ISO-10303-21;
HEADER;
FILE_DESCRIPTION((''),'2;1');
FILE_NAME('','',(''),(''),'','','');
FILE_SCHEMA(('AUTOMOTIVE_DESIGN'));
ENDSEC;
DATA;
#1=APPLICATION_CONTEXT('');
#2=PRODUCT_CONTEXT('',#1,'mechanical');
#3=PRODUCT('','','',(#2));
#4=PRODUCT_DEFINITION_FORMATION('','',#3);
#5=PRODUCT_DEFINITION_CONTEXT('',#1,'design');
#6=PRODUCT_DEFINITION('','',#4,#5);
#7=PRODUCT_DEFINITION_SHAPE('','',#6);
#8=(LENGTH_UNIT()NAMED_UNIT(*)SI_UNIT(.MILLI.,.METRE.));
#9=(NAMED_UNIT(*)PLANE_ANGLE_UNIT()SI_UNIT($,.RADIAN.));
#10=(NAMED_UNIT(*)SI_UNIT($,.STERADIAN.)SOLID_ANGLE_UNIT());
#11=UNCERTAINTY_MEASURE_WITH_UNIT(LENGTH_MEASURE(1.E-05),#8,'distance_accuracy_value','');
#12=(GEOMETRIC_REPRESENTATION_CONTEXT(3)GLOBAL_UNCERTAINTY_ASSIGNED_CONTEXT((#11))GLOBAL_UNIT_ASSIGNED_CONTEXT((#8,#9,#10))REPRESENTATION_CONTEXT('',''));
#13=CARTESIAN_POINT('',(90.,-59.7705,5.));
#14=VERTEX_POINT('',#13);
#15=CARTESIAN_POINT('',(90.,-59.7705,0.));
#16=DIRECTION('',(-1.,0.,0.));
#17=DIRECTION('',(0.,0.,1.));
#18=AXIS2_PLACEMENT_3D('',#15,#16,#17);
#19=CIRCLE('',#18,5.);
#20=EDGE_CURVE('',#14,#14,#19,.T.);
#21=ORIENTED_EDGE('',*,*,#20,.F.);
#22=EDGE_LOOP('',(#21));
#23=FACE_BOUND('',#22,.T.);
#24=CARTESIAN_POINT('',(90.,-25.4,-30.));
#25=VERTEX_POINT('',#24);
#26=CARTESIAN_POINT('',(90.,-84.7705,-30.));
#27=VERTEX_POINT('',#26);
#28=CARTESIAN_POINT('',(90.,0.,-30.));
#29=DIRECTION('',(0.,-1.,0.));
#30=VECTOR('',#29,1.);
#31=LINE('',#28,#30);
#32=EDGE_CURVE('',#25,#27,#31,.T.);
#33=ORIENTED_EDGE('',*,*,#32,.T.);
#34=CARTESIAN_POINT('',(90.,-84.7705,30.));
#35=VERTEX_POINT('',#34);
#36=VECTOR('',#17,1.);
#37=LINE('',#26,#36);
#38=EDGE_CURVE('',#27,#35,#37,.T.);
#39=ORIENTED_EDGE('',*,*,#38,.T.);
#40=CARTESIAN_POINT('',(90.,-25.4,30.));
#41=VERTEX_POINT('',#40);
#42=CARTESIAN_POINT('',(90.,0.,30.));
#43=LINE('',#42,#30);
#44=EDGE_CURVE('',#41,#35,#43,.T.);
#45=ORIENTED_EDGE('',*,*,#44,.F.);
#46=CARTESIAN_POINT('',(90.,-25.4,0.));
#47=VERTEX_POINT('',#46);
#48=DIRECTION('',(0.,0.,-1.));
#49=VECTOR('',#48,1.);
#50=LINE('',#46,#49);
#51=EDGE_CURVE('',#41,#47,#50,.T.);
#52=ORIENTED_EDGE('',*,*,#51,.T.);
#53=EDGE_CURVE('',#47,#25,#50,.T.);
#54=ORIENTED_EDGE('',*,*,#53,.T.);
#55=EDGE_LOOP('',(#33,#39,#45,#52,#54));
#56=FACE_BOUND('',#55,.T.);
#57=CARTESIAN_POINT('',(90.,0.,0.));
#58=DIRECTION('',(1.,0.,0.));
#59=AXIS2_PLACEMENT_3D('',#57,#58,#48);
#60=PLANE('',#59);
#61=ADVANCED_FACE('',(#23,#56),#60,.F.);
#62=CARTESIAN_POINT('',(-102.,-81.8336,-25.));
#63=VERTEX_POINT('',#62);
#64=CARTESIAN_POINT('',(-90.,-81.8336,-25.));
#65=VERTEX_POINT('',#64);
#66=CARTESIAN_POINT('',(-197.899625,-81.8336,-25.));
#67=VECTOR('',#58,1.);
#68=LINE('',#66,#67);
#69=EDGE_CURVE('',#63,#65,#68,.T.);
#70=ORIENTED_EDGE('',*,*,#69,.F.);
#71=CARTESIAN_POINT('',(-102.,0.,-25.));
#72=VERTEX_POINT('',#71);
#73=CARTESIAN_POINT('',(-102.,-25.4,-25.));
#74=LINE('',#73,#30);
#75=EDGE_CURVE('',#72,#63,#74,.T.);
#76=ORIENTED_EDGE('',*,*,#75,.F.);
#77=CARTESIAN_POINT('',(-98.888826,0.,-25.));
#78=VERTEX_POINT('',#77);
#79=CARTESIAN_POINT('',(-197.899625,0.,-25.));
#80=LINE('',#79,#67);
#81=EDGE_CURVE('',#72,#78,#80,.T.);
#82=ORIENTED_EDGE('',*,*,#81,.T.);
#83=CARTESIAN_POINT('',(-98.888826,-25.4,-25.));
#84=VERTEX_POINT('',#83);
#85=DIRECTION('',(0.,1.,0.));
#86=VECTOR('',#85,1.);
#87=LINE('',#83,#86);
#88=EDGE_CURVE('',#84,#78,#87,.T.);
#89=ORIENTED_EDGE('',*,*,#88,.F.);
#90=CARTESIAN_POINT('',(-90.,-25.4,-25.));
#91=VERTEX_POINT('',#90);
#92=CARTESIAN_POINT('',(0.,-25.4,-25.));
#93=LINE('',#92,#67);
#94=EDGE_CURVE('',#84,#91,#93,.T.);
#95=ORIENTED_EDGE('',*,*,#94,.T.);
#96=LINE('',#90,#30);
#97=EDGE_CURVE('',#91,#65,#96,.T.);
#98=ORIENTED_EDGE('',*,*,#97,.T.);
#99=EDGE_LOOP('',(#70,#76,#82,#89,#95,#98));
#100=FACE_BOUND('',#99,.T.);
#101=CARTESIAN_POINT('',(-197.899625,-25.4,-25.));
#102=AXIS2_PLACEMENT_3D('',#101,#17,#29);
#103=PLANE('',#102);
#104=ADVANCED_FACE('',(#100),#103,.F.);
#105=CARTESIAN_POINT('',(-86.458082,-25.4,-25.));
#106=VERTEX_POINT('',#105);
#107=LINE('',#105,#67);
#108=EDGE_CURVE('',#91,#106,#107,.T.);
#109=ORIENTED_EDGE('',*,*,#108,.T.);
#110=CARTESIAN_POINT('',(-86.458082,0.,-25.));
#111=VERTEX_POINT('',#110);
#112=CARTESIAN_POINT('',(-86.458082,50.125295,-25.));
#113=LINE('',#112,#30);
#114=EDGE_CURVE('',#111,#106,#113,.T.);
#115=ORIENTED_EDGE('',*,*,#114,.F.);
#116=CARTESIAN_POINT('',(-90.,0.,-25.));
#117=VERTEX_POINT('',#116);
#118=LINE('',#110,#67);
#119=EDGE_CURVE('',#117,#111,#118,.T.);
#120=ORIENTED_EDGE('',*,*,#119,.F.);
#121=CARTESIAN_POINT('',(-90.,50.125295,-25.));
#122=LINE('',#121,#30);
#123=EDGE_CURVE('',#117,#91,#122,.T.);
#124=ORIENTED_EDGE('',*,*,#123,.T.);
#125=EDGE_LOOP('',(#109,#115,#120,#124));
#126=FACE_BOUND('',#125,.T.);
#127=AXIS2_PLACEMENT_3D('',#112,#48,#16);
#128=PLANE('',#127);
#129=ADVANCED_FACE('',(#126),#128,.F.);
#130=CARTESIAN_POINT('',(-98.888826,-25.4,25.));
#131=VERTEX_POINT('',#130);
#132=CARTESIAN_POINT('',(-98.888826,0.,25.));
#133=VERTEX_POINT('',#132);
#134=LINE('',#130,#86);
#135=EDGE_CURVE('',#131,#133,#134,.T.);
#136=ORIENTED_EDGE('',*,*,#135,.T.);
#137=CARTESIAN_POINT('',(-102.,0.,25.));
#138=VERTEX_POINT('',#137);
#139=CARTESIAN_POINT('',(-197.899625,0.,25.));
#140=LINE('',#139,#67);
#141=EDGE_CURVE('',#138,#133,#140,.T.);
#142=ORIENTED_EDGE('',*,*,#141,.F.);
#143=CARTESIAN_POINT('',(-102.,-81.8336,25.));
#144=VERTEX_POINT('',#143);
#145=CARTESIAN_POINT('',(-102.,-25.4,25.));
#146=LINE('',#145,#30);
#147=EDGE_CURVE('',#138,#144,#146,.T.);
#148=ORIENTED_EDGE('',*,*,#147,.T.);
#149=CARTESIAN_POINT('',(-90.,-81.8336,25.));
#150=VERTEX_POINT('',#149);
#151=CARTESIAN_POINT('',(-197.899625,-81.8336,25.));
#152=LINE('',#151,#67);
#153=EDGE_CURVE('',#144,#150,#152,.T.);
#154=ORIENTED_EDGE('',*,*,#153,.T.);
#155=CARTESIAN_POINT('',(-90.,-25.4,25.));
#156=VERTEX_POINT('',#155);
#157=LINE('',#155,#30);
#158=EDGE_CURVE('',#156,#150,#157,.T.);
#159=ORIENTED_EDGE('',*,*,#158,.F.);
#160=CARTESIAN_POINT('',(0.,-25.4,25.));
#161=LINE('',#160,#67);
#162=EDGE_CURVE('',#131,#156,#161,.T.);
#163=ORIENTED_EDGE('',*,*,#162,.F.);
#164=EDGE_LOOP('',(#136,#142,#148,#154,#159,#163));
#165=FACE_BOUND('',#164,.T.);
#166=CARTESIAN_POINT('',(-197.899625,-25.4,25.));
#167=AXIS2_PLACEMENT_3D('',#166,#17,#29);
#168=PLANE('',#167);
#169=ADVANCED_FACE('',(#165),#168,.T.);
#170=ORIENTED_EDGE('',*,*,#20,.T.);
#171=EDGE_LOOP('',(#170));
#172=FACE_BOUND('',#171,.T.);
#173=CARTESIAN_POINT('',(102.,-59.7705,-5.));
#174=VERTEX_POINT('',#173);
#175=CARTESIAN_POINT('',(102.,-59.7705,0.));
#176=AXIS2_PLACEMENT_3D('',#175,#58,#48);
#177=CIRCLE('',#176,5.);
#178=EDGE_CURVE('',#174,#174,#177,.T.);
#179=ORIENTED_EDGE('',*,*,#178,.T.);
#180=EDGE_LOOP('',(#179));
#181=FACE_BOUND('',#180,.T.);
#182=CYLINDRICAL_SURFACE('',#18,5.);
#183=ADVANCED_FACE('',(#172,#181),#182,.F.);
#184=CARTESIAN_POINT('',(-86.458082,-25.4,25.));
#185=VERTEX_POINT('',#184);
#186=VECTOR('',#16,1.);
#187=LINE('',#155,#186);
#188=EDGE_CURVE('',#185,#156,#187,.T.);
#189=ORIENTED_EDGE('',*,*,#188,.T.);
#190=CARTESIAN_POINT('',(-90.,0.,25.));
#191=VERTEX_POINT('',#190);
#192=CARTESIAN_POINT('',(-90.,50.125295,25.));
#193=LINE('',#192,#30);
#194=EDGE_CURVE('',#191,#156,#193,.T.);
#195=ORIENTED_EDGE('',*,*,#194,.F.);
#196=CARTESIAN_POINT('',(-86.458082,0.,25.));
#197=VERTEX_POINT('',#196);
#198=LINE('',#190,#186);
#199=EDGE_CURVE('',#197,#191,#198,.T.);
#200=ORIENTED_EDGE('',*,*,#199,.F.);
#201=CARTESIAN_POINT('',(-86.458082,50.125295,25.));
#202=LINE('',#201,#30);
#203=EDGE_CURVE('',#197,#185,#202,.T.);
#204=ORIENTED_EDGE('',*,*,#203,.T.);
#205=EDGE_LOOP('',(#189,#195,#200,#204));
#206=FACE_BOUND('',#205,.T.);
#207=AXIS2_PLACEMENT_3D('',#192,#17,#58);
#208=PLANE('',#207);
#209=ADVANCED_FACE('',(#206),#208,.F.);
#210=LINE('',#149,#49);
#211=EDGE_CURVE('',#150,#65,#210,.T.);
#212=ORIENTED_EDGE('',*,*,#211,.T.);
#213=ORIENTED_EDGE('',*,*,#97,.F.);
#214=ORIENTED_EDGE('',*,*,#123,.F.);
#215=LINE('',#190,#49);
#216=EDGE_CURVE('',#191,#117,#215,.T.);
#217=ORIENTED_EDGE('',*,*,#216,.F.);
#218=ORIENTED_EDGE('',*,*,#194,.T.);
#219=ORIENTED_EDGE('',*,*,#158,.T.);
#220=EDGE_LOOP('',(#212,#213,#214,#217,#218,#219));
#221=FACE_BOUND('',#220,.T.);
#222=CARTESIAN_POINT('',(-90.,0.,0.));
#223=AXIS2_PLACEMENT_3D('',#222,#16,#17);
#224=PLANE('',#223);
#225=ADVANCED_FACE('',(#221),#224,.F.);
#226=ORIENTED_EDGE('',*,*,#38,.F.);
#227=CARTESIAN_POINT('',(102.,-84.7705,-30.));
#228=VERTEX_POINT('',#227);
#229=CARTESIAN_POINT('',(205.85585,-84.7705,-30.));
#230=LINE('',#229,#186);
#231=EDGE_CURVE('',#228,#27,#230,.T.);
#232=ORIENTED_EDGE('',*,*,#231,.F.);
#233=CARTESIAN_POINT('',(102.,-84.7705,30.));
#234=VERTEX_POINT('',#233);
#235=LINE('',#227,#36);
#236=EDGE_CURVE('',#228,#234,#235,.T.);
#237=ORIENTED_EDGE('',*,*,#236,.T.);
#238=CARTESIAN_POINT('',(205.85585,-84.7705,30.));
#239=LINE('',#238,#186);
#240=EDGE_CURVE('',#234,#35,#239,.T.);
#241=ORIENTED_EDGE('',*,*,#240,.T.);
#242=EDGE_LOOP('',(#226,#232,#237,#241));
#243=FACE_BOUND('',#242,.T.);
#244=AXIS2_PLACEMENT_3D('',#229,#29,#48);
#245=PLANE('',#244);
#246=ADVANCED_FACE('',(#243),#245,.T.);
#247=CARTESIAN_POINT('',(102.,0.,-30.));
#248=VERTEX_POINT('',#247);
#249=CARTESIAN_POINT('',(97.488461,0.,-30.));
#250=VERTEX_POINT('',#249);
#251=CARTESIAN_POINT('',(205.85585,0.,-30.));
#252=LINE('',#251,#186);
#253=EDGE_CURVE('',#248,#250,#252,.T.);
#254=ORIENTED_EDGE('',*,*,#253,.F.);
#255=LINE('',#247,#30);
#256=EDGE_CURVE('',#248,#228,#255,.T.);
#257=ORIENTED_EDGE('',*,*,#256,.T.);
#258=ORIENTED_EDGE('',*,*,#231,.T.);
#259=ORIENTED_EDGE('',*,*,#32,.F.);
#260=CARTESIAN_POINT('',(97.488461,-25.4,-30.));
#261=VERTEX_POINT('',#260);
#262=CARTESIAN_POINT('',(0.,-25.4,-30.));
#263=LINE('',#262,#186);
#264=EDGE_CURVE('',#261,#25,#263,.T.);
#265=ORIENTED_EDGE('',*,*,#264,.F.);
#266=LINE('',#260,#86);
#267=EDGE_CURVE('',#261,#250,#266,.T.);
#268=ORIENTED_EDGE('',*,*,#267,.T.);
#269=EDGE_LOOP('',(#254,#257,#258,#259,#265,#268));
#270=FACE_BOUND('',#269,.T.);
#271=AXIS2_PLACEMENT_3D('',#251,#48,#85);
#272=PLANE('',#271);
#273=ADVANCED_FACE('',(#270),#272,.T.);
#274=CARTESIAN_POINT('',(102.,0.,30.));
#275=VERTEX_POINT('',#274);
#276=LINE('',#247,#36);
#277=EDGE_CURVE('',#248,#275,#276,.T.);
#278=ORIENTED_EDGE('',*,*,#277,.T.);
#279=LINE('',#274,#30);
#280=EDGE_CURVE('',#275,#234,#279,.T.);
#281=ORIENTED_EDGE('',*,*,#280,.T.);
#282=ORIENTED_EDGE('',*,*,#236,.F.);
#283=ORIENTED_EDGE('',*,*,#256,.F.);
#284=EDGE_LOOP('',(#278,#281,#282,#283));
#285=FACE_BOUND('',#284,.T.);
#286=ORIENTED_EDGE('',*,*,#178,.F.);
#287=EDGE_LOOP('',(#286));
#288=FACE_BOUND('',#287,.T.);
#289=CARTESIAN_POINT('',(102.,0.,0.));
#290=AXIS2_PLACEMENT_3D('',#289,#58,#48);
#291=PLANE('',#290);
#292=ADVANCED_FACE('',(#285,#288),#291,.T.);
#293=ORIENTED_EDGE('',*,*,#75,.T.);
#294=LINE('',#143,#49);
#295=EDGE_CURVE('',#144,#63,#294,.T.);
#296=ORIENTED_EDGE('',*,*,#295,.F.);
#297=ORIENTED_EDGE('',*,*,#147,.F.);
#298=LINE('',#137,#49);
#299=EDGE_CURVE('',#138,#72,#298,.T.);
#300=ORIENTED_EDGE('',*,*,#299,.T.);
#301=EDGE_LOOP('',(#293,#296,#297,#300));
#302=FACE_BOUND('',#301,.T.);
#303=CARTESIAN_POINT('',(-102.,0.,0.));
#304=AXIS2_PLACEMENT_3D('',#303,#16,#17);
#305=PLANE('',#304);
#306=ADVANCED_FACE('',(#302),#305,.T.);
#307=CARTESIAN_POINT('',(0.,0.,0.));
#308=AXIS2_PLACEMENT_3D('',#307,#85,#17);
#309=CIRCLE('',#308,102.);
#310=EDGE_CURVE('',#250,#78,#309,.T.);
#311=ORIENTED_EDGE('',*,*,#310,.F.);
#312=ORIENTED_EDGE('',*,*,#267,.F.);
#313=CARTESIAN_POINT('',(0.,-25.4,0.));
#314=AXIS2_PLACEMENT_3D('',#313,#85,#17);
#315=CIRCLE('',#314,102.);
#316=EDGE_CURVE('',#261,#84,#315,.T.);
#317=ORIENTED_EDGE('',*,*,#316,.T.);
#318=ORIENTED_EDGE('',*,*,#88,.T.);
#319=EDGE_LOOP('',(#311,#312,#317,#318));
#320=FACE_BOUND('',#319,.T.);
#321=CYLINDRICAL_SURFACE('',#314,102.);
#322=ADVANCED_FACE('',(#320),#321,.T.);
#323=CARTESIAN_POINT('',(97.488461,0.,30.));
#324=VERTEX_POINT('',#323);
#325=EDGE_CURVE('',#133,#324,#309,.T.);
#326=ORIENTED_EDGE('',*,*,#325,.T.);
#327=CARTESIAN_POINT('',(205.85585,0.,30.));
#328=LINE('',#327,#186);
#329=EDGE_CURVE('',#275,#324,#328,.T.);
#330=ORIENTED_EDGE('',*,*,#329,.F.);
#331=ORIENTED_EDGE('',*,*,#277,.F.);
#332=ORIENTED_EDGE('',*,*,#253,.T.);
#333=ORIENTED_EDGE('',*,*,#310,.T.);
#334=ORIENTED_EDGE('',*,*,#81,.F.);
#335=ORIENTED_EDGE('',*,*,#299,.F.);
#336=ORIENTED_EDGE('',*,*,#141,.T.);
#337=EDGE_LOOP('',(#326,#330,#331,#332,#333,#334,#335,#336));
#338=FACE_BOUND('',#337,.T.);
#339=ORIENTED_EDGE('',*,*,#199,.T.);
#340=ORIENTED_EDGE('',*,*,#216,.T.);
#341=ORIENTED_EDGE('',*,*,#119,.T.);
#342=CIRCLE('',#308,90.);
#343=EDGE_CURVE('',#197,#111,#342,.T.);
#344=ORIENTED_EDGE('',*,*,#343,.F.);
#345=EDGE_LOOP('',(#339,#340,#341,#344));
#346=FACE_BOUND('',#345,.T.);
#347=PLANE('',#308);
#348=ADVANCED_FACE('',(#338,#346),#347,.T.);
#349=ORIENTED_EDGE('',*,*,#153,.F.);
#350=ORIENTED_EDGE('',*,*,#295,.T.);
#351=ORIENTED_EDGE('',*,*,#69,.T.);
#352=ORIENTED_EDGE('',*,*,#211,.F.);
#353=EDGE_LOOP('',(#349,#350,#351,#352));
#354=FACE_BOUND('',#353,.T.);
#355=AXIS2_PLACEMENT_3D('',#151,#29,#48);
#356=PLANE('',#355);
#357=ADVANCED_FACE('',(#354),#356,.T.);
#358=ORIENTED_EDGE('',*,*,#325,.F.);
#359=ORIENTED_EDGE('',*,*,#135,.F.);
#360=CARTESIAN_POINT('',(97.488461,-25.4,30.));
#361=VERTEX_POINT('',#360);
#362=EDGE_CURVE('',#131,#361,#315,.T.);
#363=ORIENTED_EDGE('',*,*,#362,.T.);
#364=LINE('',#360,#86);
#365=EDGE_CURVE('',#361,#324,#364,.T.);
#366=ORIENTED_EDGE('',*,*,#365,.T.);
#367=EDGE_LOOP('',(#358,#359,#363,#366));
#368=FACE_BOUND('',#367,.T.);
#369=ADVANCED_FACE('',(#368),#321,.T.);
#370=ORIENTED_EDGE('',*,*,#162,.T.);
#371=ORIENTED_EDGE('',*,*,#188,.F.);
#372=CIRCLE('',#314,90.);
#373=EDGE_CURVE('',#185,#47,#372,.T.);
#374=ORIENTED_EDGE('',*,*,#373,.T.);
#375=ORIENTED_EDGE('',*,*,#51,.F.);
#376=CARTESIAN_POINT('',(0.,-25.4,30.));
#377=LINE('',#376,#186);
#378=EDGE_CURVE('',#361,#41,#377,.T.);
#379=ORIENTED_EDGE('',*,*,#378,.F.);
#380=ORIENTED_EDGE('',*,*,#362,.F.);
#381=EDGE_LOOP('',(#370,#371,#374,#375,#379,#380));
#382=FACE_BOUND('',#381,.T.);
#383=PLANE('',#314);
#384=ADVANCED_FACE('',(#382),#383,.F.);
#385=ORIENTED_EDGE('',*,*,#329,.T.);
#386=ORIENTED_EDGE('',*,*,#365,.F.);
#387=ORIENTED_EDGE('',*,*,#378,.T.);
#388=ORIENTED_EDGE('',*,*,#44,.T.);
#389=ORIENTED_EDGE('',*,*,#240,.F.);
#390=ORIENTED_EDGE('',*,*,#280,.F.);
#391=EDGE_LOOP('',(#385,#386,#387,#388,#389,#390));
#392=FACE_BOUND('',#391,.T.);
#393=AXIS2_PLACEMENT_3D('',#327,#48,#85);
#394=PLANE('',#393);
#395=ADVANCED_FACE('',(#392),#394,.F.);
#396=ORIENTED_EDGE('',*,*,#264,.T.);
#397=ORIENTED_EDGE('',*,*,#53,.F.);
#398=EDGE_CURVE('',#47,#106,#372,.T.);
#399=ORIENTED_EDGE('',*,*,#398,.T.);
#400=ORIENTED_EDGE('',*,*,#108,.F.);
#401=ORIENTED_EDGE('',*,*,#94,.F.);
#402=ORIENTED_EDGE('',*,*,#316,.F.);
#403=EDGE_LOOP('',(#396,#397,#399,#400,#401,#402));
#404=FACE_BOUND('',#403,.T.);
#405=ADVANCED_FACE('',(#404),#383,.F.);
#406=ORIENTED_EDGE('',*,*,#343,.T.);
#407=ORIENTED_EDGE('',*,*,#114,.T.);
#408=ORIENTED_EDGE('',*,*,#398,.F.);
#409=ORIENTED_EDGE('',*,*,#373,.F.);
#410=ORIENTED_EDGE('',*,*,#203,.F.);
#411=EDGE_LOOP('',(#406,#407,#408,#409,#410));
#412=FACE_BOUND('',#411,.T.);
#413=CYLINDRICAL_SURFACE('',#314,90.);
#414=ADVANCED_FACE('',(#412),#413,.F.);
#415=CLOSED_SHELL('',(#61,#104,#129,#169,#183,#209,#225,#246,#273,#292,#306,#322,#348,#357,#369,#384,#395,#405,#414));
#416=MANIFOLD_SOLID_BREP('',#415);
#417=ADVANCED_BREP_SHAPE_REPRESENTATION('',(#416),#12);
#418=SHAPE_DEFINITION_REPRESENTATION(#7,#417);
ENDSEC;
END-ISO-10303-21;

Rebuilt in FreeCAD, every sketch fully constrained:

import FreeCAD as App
import Part
import Sketcher
from FreeCAD import Vector


def add_polygon(sketch, points):
    """Adds a closed chain of lines whose ends are joined by coincident constraints."""
    first, n = sketch.GeometryCount, len(points)
    for a, b in zip(points, points[1:] + points[:1]):
        sketch.addGeometry(Part.LineSegment(App.Vector(*a, 0), App.Vector(*b, 0)), False)
    for i in range(n):
        sketch.addConstraint(Sketcher.Constraint("Coincident", first + i, 2, first + (i + 1) % n, 1))

doc = App.newDocument("Part")
params = doc.addObject("Spreadsheet::Sheet", "Params")
for row, (alias, value) in enumerate([
    ("sketch1_diameter", "204 mm"),
    ("sketch1_diameter2", "180 mm"),
    ("pad1_length", "25.4 mm"),
    ("sketch2_height", "50 mm"),
    ("pad2_length", "12 mm"),
    ("sketch3_height", "50 mm"),
    ("pocket1_length", "25.4 mm"),
    ("sketch4_height", "60 mm"),
    ("pad3_length", "12 mm"),
    ("sketch5_diameter", "10 mm"),
    ("hole_diameter", "10 mm"),
    ("hole_depth", "12 mm"),
], start=1):
    params.set(f"A{row}", alias)
    params.set(f"B{row}", "=" + value)
    params.setAlias(f"B{row}", alias)

body = doc.addObject("PartDesign::Body", "Body")

sketch1 = doc.addObject("Sketcher::SketchObject", "Sketch")
body.addObject(sketch1)
sketch1.AttachmentSupport = (doc.XZ_Plane, [""])
sketch1.MapMode = "FlatFace"
sketch1.addGeometry(Part.Circle(Vector(0, 0, 0), Vector(0, 0, 1), 102), False)
sketch1.addGeometry(Part.Circle(Vector(0, 0, 0), Vector(0, 0, 1), 90), False)
sketch1.addConstraint(Sketcher.Constraint("Coincident", 0, 3, -1, 1))
sketch1.addConstraint(Sketcher.Constraint("Coincident", 1, 3, -1, 1))
sketch1.addConstraint(Sketcher.Constraint("Diameter", 0, 204.0))
sketch1.addConstraint(Sketcher.Constraint("Diameter", 1, 180.0))
sketch1.setExpression("Constraints[2]", "Params.sketch1_diameter")
sketch1.setExpression("Constraints[3]", "Params.sketch1_diameter2")
pad1 = doc.addObject("PartDesign::Pad", "Pad")
body.addObject(pad1)
pad1.Profile = sketch1
pad1.setExpression("Length", "Params.pad1_length")

sketch2 = doc.addObject("Sketcher::SketchObject", "Sketch001")
body.addObject(sketch2)
sketch2.AttachmentSupport = (doc.YZ_Plane, [""])
sketch2.MapMode = "FlatFace"
sketch2.AttachmentOffset = App.Placement(Vector(0, 0, -90), App.Rotation())
add_polygon(sketch2, [(-82, 25), (-82, -25), (0, -25), (0, 25)])
sketch2.addConstraint(Sketcher.Constraint("Vertical", 0))
sketch2.addConstraint(Sketcher.Constraint("Horizontal", 1))
sketch2.addConstraint(Sketcher.Constraint("Vertical", 2))
sketch2.addConstraint(Sketcher.Constraint("Horizontal", 3))
sketch2.addConstraint(Sketcher.Constraint("Symmetric", 1, 2, 2, 2, -1, 1))
sketch2.addConstraint(Sketcher.Constraint("DistanceY", 0, 2, 0, 1, 50.0))
sketch2.addConstraint(Sketcher.Constraint("DistanceX", 1, 1, 1, 2, 81.8336))
sketch2.setExpression("Constraints[9]", "Params.sketch2_height")
pad2 = doc.addObject("PartDesign::Pad", "Pad001")
body.addObject(pad2)
pad2.Profile = sketch2
pad2.setExpression("Length", "Params.pad2_length")
pad2.Reversed = True

sketch3 = doc.addObject("Sketcher::SketchObject", "Sketch002")
body.addObject(sketch3)
sketch3.AttachmentSupport = (doc.XZ_Plane, [""])
sketch3.MapMode = "FlatFace"
sketch3.AttachmentOffset = App.Placement(Vector(0, 0, 25.4), App.Rotation())
add_polygon(sketch3, [(-90, 25), (-90, -25), (-86.5, -25), (-86.5, 25)])
sketch3.addConstraint(Sketcher.Constraint("Vertical", 0))
sketch3.addConstraint(Sketcher.Constraint("Horizontal", 1))
sketch3.addConstraint(Sketcher.Constraint("Vertical", 2))
sketch3.addConstraint(Sketcher.Constraint("Horizontal", 3))
sketch3.addConstraint(Sketcher.Constraint("DistanceY", 0, 2, 0, 1, 50.0))
sketch3.addConstraint(Sketcher.Constraint("DistanceX", 0, 2, -1, 1, 90.0))
sketch3.addConstraint(Sketcher.Constraint("DistanceY", 0, 2, -1, 1, 25.0))
sketch3.addConstraint(Sketcher.Constraint("DistanceX", 1, 1, 1, 2, 3.541918))
sketch3.setExpression("Constraints[8]", "Params.sketch3_height")
pocket1 = doc.addObject("PartDesign::Pocket", "Pocket")
body.addObject(pocket1)
pocket1.Profile = sketch3
pocket1.setExpression("Length", "Params.pocket1_length")

sketch4 = doc.addObject("Sketcher::SketchObject", "Sketch003")
body.addObject(sketch4)
sketch4.AttachmentSupport = (doc.YZ_Plane, [""])
sketch4.MapMode = "FlatFace"
sketch4.AttachmentOffset = App.Placement(Vector(0, 0, 90), App.Rotation())
add_polygon(sketch4, [(0, -30), (-85, -30), (-85, 30), (0, 30)])
sketch4.addConstraint(Sketcher.Constraint("Horizontal", 0))
sketch4.addConstraint(Sketcher.Constraint("Vertical", 1))
sketch4.addConstraint(Sketcher.Constraint("Horizontal", 2))
sketch4.addConstraint(Sketcher.Constraint("Vertical", 3))
sketch4.addConstraint(Sketcher.Constraint("Symmetric", 2, 2, 3, 2, -1, 1))
sketch4.addConstraint(Sketcher.Constraint("DistanceY", 1, 1, 1, 2, 60.0))
sketch4.addConstraint(Sketcher.Constraint("DistanceX", 0, 2, 0, 1, 84.7705))
sketch4.setExpression("Constraints[9]", "Params.sketch4_height")
pad3 = doc.addObject("PartDesign::Pad", "Pad002")
body.addObject(pad3)
pad3.Profile = sketch4
pad3.setExpression("Length", "Params.pad3_length")

sketch5 = doc.addObject("Sketcher::SketchObject", "Sketch004")
body.addObject(sketch5)
sketch5.AttachmentSupport = (doc.YZ_Plane, [""])
sketch5.MapMode = "FlatFace"
sketch5.AttachmentOffset = App.Placement(Vector(0, 0, 90), App.Rotation())
sketch5.addGeometry(Part.Circle(Vector(-60, 0, 0), Vector(0, 0, 1), 5), False)
sketch5.addConstraint(Sketcher.Constraint("PointOnObject", 0, 3, -1))
sketch5.addConstraint(Sketcher.Constraint("Diameter", 0, 10.0))
sketch5.addConstraint(Sketcher.Constraint("DistanceX", 0, 3, -1, 1, 59.7705))
sketch5.setExpression("Constraints[1]", "Params.sketch5_diameter")
doc.recompute()
hole = doc.addObject("PartDesign::Hole", "Hole")
body.addObject(hole)
hole.Profile = sketch5
hole.ThreadType = "None"
hole.setExpression("Diameter", "Params.hole_diameter")
hole.DepthType = "Dimension"
hole.setExpression("Depth", "Params.hole_depth")
hole.DrillPoint = "Flat"
hole.Reversed = True

doc.recompute()
